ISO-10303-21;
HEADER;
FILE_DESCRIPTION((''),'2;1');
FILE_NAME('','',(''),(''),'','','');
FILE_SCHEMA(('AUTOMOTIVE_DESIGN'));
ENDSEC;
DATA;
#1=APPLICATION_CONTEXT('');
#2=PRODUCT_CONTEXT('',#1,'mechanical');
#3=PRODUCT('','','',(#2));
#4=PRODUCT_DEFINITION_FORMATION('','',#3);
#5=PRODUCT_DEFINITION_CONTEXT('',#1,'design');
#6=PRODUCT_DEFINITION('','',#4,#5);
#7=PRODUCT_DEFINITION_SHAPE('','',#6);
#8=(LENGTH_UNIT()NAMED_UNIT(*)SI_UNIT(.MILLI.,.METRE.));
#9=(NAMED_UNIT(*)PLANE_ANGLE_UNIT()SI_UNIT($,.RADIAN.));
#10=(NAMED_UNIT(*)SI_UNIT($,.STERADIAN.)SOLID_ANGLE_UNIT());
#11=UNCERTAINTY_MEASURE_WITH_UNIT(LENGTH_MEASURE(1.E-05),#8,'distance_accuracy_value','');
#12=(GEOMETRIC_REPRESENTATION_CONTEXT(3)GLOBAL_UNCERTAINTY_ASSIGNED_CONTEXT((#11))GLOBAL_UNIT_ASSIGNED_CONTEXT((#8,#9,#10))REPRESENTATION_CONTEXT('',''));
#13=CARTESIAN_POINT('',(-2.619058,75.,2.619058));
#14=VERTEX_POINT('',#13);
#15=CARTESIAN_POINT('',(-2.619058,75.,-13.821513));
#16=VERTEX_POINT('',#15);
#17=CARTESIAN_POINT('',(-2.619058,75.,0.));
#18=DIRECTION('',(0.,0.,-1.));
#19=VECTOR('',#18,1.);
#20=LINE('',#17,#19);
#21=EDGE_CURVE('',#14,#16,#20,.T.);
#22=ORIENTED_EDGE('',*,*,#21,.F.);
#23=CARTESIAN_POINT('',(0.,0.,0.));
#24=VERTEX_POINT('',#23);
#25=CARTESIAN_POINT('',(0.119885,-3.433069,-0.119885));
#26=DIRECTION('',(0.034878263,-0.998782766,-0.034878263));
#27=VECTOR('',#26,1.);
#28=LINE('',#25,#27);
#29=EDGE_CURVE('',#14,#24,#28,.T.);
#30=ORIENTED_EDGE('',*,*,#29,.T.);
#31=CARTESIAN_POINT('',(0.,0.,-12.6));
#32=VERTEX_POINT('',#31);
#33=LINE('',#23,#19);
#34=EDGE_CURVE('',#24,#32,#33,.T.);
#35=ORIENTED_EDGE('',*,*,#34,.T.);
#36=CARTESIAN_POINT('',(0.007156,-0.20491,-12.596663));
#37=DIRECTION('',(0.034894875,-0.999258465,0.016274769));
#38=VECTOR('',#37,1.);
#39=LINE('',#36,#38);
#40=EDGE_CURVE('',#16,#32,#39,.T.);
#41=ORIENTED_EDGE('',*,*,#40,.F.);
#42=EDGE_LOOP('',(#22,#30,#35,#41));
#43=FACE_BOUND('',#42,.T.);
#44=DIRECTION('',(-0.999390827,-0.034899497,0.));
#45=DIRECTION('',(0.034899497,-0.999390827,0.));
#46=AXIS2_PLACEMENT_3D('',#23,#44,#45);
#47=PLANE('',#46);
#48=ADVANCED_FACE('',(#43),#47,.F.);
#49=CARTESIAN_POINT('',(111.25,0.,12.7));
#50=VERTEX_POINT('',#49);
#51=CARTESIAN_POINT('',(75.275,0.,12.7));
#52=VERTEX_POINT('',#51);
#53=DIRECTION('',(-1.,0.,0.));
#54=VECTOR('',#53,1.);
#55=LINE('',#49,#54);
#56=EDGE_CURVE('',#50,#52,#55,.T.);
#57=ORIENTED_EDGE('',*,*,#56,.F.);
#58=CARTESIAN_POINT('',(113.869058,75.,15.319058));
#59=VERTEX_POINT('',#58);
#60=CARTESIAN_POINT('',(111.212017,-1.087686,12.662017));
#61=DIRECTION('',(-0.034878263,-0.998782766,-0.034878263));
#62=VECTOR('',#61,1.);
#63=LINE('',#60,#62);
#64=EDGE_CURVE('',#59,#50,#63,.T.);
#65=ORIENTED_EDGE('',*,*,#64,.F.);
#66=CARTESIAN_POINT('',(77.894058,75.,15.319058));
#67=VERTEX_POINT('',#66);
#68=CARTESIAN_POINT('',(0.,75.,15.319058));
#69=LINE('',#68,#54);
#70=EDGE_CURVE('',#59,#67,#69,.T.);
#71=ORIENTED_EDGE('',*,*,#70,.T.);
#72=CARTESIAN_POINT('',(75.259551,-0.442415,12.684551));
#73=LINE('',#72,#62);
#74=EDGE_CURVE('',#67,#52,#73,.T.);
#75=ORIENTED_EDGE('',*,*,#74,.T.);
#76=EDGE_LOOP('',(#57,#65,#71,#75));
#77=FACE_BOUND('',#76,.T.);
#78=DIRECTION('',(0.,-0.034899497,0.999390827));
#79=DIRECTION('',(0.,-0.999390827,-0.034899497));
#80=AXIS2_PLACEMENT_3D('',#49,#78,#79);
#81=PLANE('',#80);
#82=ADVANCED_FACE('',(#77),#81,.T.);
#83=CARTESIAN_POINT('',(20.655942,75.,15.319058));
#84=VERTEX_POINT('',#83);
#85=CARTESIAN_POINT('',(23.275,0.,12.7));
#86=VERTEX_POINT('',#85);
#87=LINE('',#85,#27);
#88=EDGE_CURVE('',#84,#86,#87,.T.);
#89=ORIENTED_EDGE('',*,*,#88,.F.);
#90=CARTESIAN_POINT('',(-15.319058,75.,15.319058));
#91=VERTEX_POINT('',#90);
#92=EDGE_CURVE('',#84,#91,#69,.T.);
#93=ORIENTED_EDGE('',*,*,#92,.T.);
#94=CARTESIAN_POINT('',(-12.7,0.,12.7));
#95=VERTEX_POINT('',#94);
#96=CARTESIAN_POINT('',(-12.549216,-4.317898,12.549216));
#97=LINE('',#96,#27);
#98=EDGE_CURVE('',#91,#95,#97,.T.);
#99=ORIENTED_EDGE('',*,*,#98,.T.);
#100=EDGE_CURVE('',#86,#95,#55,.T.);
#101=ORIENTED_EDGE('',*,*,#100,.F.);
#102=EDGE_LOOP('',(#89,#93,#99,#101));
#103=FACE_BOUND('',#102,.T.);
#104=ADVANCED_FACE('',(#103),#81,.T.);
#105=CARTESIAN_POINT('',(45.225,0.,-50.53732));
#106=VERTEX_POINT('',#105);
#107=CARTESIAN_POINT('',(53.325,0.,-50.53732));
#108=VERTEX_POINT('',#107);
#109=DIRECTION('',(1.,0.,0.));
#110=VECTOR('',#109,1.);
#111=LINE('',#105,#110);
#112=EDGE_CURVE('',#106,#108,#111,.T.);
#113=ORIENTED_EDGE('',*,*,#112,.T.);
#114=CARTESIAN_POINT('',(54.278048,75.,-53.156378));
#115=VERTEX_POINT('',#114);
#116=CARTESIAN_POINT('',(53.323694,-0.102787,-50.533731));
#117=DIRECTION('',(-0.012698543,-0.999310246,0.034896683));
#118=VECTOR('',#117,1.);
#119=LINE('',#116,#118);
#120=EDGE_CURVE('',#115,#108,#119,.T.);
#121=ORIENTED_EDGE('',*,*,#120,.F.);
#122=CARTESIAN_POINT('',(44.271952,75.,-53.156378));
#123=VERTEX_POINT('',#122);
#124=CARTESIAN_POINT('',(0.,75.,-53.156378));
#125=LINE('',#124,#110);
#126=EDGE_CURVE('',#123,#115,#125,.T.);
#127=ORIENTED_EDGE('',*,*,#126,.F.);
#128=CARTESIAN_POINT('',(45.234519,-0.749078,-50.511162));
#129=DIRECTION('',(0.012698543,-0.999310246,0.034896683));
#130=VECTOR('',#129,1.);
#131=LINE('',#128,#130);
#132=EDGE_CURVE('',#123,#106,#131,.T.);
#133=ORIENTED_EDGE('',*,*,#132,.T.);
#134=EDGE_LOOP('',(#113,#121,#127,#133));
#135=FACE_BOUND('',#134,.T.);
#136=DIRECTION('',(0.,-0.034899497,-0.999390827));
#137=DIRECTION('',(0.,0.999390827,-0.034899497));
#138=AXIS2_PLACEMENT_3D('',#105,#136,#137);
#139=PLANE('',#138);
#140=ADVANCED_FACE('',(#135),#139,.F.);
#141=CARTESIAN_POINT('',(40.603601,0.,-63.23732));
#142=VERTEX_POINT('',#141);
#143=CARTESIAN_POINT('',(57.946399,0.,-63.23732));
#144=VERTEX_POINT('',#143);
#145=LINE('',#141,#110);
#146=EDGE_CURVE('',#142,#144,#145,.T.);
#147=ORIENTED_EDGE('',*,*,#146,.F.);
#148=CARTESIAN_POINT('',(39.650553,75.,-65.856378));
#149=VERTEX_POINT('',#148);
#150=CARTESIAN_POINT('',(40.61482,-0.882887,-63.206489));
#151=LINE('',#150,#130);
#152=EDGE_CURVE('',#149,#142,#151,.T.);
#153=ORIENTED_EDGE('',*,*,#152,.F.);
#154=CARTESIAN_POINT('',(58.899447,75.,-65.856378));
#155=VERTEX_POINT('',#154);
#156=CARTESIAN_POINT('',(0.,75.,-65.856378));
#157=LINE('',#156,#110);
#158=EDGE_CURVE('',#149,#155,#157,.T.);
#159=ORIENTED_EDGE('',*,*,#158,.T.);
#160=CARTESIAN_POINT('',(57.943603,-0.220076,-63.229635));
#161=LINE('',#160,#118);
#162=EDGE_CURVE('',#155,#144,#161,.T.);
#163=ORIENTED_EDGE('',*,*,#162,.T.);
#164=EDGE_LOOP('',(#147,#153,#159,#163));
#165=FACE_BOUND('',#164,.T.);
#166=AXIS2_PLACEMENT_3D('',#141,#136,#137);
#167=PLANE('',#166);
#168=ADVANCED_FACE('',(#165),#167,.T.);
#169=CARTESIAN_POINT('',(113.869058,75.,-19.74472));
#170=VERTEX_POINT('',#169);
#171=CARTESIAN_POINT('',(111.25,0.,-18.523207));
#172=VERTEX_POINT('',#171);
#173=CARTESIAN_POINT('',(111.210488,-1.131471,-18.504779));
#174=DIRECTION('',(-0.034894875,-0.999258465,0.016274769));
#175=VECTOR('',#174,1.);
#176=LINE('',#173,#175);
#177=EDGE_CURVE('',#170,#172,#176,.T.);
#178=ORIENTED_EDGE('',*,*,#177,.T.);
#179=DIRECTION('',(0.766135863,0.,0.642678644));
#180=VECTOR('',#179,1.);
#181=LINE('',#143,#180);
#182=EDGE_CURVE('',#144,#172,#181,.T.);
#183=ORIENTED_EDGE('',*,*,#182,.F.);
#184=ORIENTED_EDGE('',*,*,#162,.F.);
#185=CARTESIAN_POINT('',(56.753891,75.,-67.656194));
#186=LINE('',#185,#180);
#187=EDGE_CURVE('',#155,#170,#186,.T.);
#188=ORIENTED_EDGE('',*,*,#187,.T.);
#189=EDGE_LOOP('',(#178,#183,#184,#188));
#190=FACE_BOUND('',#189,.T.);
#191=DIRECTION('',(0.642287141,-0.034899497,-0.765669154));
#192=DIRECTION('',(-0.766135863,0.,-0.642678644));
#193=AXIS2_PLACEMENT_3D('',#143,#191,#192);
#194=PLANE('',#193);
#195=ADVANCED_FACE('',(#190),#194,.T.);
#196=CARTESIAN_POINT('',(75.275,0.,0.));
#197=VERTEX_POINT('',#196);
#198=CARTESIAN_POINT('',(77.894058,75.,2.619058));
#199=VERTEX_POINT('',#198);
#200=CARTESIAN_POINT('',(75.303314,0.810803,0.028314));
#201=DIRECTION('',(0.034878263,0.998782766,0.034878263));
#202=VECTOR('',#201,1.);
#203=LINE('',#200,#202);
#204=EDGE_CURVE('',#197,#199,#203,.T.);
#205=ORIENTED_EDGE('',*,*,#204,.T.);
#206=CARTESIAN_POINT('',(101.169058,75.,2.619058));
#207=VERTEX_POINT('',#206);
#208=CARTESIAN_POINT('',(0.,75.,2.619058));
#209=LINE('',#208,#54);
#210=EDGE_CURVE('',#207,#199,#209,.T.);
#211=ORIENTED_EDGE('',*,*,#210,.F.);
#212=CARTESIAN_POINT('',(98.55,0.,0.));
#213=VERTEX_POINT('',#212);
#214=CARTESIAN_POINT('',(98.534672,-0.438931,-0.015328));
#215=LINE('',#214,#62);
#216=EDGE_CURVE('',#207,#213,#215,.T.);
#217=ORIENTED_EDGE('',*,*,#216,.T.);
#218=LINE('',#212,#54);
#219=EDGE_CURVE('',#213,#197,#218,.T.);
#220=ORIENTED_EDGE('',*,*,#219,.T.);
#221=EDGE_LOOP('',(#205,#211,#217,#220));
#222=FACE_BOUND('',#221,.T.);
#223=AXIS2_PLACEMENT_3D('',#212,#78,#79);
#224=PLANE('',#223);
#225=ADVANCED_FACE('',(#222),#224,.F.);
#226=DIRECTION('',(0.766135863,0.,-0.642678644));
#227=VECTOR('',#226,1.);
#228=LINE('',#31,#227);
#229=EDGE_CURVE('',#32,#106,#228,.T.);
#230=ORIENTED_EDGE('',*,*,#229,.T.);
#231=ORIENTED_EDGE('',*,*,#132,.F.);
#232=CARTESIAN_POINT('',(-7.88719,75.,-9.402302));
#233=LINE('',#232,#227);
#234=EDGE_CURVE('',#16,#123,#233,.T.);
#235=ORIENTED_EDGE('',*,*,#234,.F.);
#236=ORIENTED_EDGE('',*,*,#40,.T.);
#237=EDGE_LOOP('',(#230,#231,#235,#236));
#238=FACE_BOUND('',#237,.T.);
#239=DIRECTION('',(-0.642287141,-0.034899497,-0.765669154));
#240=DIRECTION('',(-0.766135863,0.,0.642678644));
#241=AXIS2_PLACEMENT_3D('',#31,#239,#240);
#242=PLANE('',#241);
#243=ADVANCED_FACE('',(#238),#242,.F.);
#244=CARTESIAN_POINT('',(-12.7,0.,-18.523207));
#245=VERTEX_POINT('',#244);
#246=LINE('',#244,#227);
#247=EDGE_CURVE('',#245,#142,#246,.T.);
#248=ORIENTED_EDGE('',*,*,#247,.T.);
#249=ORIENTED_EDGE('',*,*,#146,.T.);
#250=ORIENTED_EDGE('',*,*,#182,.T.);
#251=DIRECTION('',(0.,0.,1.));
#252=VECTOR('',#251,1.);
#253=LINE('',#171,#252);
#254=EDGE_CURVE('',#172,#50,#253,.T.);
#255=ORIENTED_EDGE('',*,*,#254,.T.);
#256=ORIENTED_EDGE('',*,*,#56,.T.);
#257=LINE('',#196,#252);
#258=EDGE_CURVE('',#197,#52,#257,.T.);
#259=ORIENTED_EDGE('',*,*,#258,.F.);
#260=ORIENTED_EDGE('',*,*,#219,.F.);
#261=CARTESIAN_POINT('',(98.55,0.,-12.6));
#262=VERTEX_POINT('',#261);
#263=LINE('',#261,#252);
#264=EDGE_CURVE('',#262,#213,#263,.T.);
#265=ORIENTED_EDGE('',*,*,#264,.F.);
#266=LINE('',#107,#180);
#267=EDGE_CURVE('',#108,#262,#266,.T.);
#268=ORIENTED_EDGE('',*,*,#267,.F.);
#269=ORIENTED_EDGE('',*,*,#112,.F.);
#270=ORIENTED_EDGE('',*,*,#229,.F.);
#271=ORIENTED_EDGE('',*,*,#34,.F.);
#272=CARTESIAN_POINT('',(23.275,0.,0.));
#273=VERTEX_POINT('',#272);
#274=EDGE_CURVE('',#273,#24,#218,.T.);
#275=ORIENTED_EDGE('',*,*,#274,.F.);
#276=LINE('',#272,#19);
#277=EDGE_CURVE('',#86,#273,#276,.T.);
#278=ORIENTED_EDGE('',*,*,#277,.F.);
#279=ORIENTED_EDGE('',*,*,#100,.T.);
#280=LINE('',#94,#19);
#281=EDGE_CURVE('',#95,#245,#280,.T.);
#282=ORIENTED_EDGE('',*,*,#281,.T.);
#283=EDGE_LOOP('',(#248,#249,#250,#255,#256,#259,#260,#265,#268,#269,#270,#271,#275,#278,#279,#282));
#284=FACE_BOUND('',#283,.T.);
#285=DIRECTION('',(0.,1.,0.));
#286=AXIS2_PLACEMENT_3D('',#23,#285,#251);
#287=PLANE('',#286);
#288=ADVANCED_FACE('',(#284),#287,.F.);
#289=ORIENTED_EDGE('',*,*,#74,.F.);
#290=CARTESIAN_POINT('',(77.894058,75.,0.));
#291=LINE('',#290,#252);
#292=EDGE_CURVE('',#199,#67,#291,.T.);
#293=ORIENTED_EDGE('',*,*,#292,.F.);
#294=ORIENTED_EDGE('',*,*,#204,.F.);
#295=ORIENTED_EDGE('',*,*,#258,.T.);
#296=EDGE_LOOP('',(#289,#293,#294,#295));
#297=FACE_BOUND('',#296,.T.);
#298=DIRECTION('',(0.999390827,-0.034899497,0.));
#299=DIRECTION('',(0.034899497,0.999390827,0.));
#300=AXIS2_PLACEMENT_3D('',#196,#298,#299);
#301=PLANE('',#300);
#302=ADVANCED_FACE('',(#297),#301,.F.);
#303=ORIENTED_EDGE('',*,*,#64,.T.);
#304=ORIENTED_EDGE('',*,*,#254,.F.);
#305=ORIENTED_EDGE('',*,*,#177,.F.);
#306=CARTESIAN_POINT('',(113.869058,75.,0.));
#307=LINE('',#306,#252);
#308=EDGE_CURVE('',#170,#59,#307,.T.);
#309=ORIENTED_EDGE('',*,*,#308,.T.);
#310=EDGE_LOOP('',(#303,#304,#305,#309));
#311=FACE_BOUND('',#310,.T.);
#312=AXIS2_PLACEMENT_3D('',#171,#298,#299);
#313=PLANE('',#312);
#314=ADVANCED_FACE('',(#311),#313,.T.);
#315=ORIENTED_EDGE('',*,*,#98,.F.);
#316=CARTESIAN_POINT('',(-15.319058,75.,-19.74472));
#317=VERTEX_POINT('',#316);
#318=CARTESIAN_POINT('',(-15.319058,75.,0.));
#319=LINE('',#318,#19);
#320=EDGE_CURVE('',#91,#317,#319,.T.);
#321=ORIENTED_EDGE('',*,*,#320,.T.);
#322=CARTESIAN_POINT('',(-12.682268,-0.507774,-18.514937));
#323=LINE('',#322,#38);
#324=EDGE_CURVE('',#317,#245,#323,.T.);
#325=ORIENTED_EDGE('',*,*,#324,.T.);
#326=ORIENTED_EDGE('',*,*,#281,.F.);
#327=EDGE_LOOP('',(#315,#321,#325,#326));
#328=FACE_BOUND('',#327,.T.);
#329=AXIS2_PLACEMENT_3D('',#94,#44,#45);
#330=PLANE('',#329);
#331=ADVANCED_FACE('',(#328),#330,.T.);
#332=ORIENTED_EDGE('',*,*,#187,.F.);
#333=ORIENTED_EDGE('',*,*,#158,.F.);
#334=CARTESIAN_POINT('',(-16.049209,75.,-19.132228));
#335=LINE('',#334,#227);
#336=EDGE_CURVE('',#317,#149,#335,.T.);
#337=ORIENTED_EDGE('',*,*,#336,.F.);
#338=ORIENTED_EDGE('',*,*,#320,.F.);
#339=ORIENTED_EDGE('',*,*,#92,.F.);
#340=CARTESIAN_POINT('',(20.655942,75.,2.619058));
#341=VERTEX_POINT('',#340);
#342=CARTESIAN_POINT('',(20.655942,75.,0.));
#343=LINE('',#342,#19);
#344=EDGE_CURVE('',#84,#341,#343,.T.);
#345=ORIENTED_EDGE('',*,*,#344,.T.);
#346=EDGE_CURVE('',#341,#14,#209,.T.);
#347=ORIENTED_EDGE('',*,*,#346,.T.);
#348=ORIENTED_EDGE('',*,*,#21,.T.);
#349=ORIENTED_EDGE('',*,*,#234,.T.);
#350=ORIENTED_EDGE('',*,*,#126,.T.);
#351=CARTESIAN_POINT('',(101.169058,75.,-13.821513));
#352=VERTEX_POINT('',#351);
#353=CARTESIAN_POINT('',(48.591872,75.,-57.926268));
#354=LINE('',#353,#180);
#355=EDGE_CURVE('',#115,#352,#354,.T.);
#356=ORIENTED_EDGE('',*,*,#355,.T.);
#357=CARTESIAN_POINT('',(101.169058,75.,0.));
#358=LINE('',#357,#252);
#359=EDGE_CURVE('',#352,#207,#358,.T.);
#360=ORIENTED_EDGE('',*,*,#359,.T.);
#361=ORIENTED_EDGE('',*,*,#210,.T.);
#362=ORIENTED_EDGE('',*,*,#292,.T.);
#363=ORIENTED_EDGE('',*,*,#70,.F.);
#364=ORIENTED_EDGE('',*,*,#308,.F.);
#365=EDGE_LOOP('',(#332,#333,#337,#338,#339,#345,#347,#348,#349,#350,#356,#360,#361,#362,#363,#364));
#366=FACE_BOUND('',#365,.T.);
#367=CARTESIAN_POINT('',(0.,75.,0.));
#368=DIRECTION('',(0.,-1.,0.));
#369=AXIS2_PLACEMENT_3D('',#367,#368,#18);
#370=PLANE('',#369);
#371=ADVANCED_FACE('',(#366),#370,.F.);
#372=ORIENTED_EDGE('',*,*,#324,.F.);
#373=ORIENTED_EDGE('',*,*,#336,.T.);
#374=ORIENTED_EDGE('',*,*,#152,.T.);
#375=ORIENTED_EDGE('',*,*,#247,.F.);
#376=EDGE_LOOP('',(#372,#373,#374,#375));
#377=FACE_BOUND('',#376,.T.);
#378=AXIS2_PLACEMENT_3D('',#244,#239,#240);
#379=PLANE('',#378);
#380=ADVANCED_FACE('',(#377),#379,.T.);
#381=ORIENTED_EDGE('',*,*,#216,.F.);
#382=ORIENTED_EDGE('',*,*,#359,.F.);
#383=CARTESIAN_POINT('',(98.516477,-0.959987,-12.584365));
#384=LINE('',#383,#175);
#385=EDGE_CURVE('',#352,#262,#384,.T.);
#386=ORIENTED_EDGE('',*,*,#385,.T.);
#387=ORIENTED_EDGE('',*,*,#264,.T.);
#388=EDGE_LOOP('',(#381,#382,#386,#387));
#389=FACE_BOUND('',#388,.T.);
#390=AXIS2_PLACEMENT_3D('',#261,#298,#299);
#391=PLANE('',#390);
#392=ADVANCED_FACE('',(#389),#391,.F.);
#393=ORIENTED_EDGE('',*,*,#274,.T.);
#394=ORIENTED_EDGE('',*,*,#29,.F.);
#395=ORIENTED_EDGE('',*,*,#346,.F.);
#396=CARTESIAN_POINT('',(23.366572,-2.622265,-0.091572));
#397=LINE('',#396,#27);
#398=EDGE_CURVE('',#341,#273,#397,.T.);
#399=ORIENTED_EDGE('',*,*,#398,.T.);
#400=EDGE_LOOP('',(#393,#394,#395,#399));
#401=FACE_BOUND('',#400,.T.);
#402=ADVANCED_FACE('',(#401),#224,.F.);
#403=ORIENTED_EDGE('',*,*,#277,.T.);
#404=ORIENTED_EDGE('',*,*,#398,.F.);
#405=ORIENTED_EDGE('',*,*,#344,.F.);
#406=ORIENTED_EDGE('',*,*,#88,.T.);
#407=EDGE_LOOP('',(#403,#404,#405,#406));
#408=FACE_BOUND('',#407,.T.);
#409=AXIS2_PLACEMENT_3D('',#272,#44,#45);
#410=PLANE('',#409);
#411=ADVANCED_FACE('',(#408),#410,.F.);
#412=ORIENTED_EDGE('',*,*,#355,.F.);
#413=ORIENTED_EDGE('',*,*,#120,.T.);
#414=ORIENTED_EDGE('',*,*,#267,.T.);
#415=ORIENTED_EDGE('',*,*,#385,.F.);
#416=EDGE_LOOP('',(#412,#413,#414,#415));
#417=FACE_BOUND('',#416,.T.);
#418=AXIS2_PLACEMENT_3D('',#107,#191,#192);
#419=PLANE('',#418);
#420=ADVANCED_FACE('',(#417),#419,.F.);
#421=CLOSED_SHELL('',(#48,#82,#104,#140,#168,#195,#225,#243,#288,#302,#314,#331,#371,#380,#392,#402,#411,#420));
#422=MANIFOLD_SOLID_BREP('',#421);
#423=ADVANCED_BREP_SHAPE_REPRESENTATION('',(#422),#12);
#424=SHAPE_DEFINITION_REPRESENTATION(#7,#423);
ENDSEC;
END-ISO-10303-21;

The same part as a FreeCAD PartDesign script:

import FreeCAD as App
import Part
import Sketcher

doc = App.newDocument("Part")
body = doc.addObject("PartDesign::Body", "Body")

# Sketch on XZ plane
sketch1 = body.newObject("Sketcher::SketchObject", "Sketch")
sketch1.AttachmentSupport = (doc.getObject("XZ_Plane"), [""])
sketch1.MapMode = "FlatFace"
sketch1.addGeometry([
    Part.LineSegment(App.Vector(0, 0, 0), App.Vector(99, 0, 0)),  # 0
    Part.LineSegment(App.Vector(99, 0, 0), App.Vector(99, -13, 0)),  # 1
    Part.LineSegment(App.Vector(99, -13, 0), App.Vector(53, -51, 0)),  # 2
    Part.LineSegment(App.Vector(53, -51, 0), App.Vector(45, -51, 0)),  # 3
    Part.LineSegment(App.Vector(45, -51, 0), App.Vector(0, -13, 0)),  # 4
    Part.LineSegment(App.Vector(0, -13, 0), App.Vector(0, 0, 0)),  # 5
], False)
sketch1.addConstraint([
    Sketcher.Constraint("Coincident", 0, 2, 1, 1),
    Sketcher.Constraint("Coincident", 1, 2, 2, 1),
    Sketcher.Constraint("Coincident", 2, 2, 3, 1),
    Sketcher.Constraint("Coincident", 3, 2, 4, 1),
    Sketcher.Constraint("Coincident", 4, 2, 5, 1),
    Sketcher.Constraint("Coincident", 5, 2, 0, 1),
    Sketcher.Constraint("Horizontal", 0),
    Sketcher.Constraint("Vertical", 1),
    Sketcher.Constraint("Horizontal", 3),
    Sketcher.Constraint("Vertical", 5),
    Sketcher.Constraint("Coincident", 5, 2, -1, 1),
    Sketcher.Constraint("Horizontal", 1, 2, 4, 2),
    Sketcher.Constraint("Equal", 2, 4),
    Sketcher.Constraint("DistanceX", 3, 2, 3, 1, 8.1),
    Sketcher.Constraint("DistanceY", 1, 2, 1, 1, 12.6),
    Sketcher.Constraint("DistanceX", 0, 1, 0, 2, 98.55),
    Sketcher.Constraint("Distance", 2, 59.03),
])
pad1 = body.newObject("PartDesign::Pad", "Pad")
pad1.Profile = sketch1
pad1.Length = 8
pad1.Reversed = True
pad1.TaperAngle = 2

# Sketch on XZ plane
sketch2 = body.newObject("Sketcher::SketchObject", "Sketch001")
sketch2.AttachmentSupport = (doc.getObject("XZ_Plane"), [""])
sketch2.MapMode = "FlatFace"
sketch2.addGeometry([
    Part.LineSegment(App.Vector(-13, 13, 0), App.Vector(-13, -19, 0)),  # 0
    Part.LineSegment(App.Vector(-13, -19, 0), App.Vector(41, -63, 0)),  # 1
    Part.LineSegment(App.Vector(41, -63, 0), App.Vector(58, -63, 0)),  # 2
    Part.LineSegment(App.Vector(58, -63, 0), App.Vector(111, -19, 0)),  # 3
    Part.LineSegment(App.Vector(111, -19, 0), App.Vector(111, 13, 0)),  # 4
    Part.LineSegment(App.Vector(111, 13, 0), App.Vector(-13, 13, 0)),  # 5
], False)
sketch2.addConstraint([
    Sketcher.Constraint("Coincident", 0, 2, 1, 1),
    Sketcher.Constraint("Coincident", 1, 2, 2, 1),
    Sketcher.Constraint("Coincident", 2, 2, 3, 1),
    Sketcher.Constraint("Coincident", 3, 2, 4, 1),
    Sketcher.Constraint("Coincident", 4, 2, 5, 1),
    Sketcher.Constraint("Coincident", 5, 2, 0, 1),
    Sketcher.Constraint("Vertical", 0),
    Sketcher.Constraint("Horizontal", 2),
    Sketcher.Constraint("Vertical", 4),
    Sketcher.Constraint("Horizontal", 5),
    Sketcher.Constraint("Horizontal", 0, 2, 3, 2),
    Sketcher.Constraint("Equal", 1, 3),
    Sketcher.Constraint("DistanceX", 5, 2, 5, 1, 123.95),
    Sketcher.Constraint("DistanceX", 0, 2, -1, 1, 12.7),
    Sketcher.Constraint("DistanceY", -1, 1, 4, 2, 12.7),
    Sketcher.Constraint("DistanceX", 2, 1, 2, 2, 17.342798),
    Sketcher.Constraint("DistanceY", 0, 2, 0, 1, 31.223207),
    Sketcher.Constraint("DistanceY", 1, 2, -1, 1, 63.23732),
])
pad2 = body.newObject("PartDesign::Pad", "Pad001")
pad2.Profile = sketch2
pad2.Length = 75
pad2.Reversed = True
pad2.TaperAngle = 2

# Sketch on XZ plane
sketch3 = body.newObject("Sketcher::SketchObject", "Sketch002")
sketch3.AttachmentSupport = (doc.getObject("XZ_Plane"), [""])
sketch3.MapMode = "FlatFace"
sketch3.addGeometry([
    Part.LineSegment(App.Vector(99, 0, 0), App.Vector(0, 0, 0)),  # 0
    Part.LineSegment(App.Vector(0, 0, 0), App.Vector(0, -13, 0)),  # 1
    Part.LineSegment(App.Vector(0, -13, 0), App.Vector(45, -51, 0)),  # 2
    Part.LineSegment(App.Vector(45, -51, 0), App.Vector(53, -51, 0)),  # 3
    Part.LineSegment(App.Vector(53, -51, 0), App.Vector(99, -13, 0)),  # 4
    Part.LineSegment(App.Vector(99, -13, 0), App.Vector(99, 0, 0)),  # 5
], False)
sketch3.addConstraint([
    Sketcher.Constraint("Coincident", 0, 2, 1, 1),
    Sketcher.Constraint("Coincident", 1, 2, 2, 1),
    Sketcher.Constraint("Coincident", 2, 2, 3, 1),
    Sketcher.Constraint("Coincident", 3, 2, 4, 1),
    Sketcher.Constraint("Coincident", 4, 2, 5, 1),
    Sketcher.Constraint("Coincident", 5, 2, 0, 1),
    Sketcher.Constraint("Horizontal", 0),
    Sketcher.Constraint("Vertical", 1),
    Sketcher.Constraint("Horizontal", 3),
    Sketcher.Constraint("Vertical", 5),
    Sketcher.Constraint("Coincident", 0, 2, -1, 1),
    Sketcher.Constraint("Horizontal", 1, 2, 4, 2),
    Sketcher.Constraint("Equal", 2, 4),
    Sketcher.Constraint("DistanceX", 3, 1, 3, 2, 8.1),
    Sketcher.Constraint("DistanceY", 1, 2, 1, 1, 12.6),
    Sketcher.Constraint("DistanceX", 0, 2, 0, 1, 98.55),
    Sketcher.Constraint("Distance", 2, 59.03),
])
pocket1 = body.newObject("PartDesign::Pocket", "Pocket")
pocket1.Profile = sketch3
pocket1.Length = 76
pocket1.TaperAngle = 2

# Sketch on XZ plane
sketch4 = body.newObject("Sketcher::SketchObject", "Sketch003")
sketch4.AttachmentSupport = (doc.getObject("XZ_Plane"), [""])
sketch4.MapMode = "FlatFace"
sketch4.addGeometry([
    Part.LineSegment(App.Vector(23, 13, 0), App.Vector(23, 0, 0)),
    Part.LineSegment(App.Vector(23, 0, 0), App.Vector(75, 0, 0)),
    Part.LineSegment(App.Vector(75, 0, 0), App.Vector(75, 13, 0)),
    Part.LineSegment(App.Vector(75, 13, 0), App.Vector(23, 13, 0)),
], False)
sketch4.addConstraint([
    Sketcher.Constraint("Coincident", 0, 2, 1, 1),
    Sketcher.Constraint("Coincident", 1, 2, 2, 1),
    Sketcher.Constraint("Coincident", 2, 2, 3, 1),
    Sketcher.Constraint("Coincident", 3, 2, 0, 1),
    Sketcher.Constraint("Vertical", 0),
    Sketcher.Constraint("Horizontal", 1),
    Sketcher.Constraint("Vertical", 2),
    Sketcher.Constraint("Horizontal", 3),
    Sketcher.Constraint("PointOnObject", 0, 2, -1),
    Sketcher.Constraint("DistanceX", 1, 1, 1, 2, 52.0),
    Sketcher.Constraint("DistanceY", 0, 2, 0, 1, 12.7),
    Sketcher.Constraint("DistanceX", -1, 1, 0, 2, 23.275),
])
pocket2 = body.newObject("PartDesign::Pocket", "Pocket001")
pocket2.Profile = sketch4
pocket2.Length = 76
pocket2.TaperAngle = 2

doc.recompute()
